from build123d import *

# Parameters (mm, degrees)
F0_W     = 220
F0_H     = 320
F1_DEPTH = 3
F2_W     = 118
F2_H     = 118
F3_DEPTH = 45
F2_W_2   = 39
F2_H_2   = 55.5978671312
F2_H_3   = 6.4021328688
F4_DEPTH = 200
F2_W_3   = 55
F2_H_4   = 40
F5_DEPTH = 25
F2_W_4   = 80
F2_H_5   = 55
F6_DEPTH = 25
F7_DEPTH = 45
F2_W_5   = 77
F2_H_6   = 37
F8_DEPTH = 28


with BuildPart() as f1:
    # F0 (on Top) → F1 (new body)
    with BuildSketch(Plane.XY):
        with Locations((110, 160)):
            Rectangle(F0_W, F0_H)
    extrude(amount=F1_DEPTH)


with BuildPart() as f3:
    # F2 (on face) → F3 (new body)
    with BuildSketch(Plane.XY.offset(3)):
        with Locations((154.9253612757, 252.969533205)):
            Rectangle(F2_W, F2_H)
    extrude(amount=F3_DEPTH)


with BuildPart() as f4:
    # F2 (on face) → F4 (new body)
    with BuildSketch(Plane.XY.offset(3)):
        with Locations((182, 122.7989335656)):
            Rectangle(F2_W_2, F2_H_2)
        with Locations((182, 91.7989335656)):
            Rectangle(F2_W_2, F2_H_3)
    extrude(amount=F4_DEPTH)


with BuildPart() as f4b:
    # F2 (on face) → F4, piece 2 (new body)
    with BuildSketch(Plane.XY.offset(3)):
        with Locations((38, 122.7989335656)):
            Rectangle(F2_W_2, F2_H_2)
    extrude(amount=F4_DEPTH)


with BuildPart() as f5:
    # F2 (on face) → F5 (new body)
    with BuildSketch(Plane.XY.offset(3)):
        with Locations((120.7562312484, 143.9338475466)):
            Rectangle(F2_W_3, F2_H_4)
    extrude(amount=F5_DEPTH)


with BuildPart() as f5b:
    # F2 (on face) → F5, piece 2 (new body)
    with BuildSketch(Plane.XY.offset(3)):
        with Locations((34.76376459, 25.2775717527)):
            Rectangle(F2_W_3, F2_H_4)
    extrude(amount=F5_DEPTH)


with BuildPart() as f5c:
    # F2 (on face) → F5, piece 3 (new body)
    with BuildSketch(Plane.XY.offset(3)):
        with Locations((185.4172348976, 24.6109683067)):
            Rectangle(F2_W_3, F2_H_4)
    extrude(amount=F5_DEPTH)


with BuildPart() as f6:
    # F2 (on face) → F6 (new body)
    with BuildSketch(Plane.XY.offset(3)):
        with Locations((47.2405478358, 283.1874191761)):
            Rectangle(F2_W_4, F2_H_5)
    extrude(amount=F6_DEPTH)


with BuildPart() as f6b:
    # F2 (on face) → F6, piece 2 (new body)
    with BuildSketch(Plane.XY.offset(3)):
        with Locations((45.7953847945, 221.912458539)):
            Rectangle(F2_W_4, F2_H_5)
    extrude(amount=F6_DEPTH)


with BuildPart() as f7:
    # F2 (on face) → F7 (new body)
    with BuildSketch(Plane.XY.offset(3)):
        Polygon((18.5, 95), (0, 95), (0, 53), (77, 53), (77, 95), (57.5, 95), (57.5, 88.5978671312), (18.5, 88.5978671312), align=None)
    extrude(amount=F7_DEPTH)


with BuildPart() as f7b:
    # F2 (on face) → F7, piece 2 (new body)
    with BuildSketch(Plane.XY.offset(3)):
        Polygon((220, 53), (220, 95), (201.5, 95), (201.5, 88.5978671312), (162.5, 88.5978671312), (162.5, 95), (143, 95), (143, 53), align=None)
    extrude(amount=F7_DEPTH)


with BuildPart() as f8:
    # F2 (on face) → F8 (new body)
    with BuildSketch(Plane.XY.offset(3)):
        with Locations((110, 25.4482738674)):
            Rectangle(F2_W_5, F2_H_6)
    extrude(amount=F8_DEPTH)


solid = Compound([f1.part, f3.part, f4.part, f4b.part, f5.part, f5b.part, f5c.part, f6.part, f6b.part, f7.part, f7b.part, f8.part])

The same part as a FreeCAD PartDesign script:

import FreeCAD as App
import Part
import Sketcher

doc = App.newDocument("Part")
params = doc.addObject("Spreadsheet::Sheet", "Params")
for row, (alias, value) in enumerate([
    ("sketch1_width", "220 mm"),
    ("sketch1_height", "320 mm"),
    ("pad1_length", "3 mm"),
    ("sketch2_width", "118 mm"),
    ("pad2_length", "45 mm"),
    ("sketch3_width", "39 mm"),
    ("sketch3_height", "62 mm"),
    ("pad3_length", "200 mm"),
    ("sketch4_width", "39 mm"),
    ("pad4_length", "200 mm"),
    ("sketch5_width", "55 mm"),
    ("sketch5_height", "40 mm"),
    ("pad5_length", "25 mm"),
    ("sketch6_width", "55 mm"),
    ("sketch6_height", "40 mm"),
    ("pad6_length", "25 mm"),
    ("sketch7_width", "55 mm"),
    ("sketch7_height", "40 mm"),
    ("pad7_length", "25 mm"),
    ("sketch8_width", "80 mm"),
    ("sketch8_height", "55 mm"),
    ("pad8_length", "25 mm"),
    ("sketch9_width", "80 mm"),
    ("sketch9_height", "55 mm"),
    ("pad9_length", "25 mm"),
    ("sketch10_width", "77 mm"),
    ("sketch10_width2", "39 mm"),
    ("sketch10_height", "42 mm"),
    ("sketch10_width3", "18.5 mm"),
    ("pad10_length", "45 mm"),
    ("sketch11_width", "39 mm"),
    ("sketch11_width2", "77 mm"),
    ("sketch11_height", "42 mm"),
    ("sketch11_width3", "18.5 mm"),
    ("pad11_length", "45 mm"),
    ("sketch12_width", "77 mm"),
    ("sketch12_height", "37 mm"),
    ("pad12_length", "28 mm"),
], start=1):
    params.set(f"A{row}", alias)
    params.set(f"B{row}", "=" + value)
    params.setAlias(f"B{row}", alias)

body = doc.addObject("PartDesign::Body", "Body")

sketch1 = body.newObject("Sketcher::SketchObject", "Sketch")
sketch1.AttachmentSupport = (doc.getObject("XY_Plane"), [""])
sketch1.MapMode = "FlatFace"
sketch1.addGeometry([
    Part.LineSegment(App.Vector(0, 320, 0), App.Vector(0, 0, 0)),
    Part.LineSegment(App.Vector(0, 0, 0), App.Vector(220, 0, 0)),
    Part.LineSegment(App.Vector(220, 0, 0), App.Vector(220, 320, 0)),
    Part.LineSegment(App.Vector(220, 320, 0), App.Vector(0, 320, 0)),
], False)
sketch1.addConstraint([
    Sketcher.Constraint("Coincident", 0, 2, 1, 1),
    Sketcher.Constraint("Coincident", 1, 2, 2, 1),
    Sketcher.Constraint("Coincident", 2, 2, 3, 1),
    Sketcher.Constraint("Coincident", 3, 2, 0, 1),
    Sketcher.Constraint("Vertical", 0),
    Sketcher.Constraint("Horizontal", 1),
    Sketcher.Constraint("Vertical", 2),
    Sketcher.Constraint("Horizontal", 3),
    Sketcher.Constraint("Coincident", 0, 2, -1, 1),
    Sketcher.Constraint("DistanceX", 1, 1, 1, 2, 220.0),
    Sketcher.Constraint("DistanceY", 0, 2, 0, 1, 320.0),
])
sketch1.setExpression("Constraints[9]", "Params.sketch1_width")
sketch1.setExpression("Constraints[10]", "Params.sketch1_height")
pad1 = body.newObject("PartDesign::Pad", "Pad")
pad1.Profile = sketch1
pad1.setExpression("Length", "Params.pad1_length")
body2 = doc.addObject("PartDesign::Body", "Body001")

sketch2 = body2.newObject("Sketcher::SketchObject", "Sketch001")
sketch2.AttachmentSupport = (doc.getObject("XY_Plane001"), [""])
sketch2.MapMode = "FlatFace"
sketch2.AttachmentOffset = App.Placement(App.Vector(0, 0, 3), App.Rotation())
sketch2.addGeometry([
    Part.LineSegment(App.Vector(96, 312, 0), App.Vector(96, 194, 0)),
    Part.LineSegment(App.Vector(96, 194, 0), App.Vector(214, 194, 0)),
    Part.LineSegment(App.Vector(214, 194, 0), App.Vector(214, 312, 0)),
    Part.LineSegment(App.Vector(214, 312, 0), App.Vector(96, 312, 0)),
], False)
sketch2.addConstraint([
    Sketcher.Constraint("Coincident", 0, 2, 1, 1),
    Sketcher.Constraint("Coincident", 1, 2, 2, 1),
    Sketcher.Constraint("Coincident", 2, 2, 3, 1),
    Sketcher.Constraint("Coincident", 3, 2, 0, 1),
    Sketcher.Constraint("Vertical", 0),
    Sketcher.Constraint("Horizontal", 1),
    Sketcher.Constraint("Vertical", 2),
    Sketcher.Constraint("Horizontal", 3),
    Sketcher.Constraint("Equal", 3, 0),
    Sketcher.Constraint("DistanceX", 1, 1, 1, 2, 118.0),
    Sketcher.Constraint("DistanceX", -1, 1, 0, 2, 95.925361),
    Sketcher.Constraint("DistanceY", -1, 1, 0, 2, 193.969533),
])
sketch2.setExpression("Constraints[9]", "Params.sketch2_width")
pad2 = body2.newObject("PartDesign::Pad", "Pad001")
pad2.Profile = sketch2
pad2.setExpression("Length", "Params.pad2_length")
body3 = doc.addObject("PartDesign::Body", "Body002")

sketch3 = body3.newObject("Sketcher::SketchObject", "Sketch002")
sketch3.AttachmentSupport = (doc.getObject("XY_Plane002"), [""])
sketch3.MapMode = "FlatFace"
sketch3.AttachmentOffset = App.Placement(App.Vector(0, 0, 3), App.Rotation())
sketch3.addGeometry([
    Part.LineSegment(App.Vector(162, 151, 0), App.Vector(162, 89, 0)),
    Part.LineSegment(App.Vector(162, 89, 0), App.Vector(202, 89, 0)),
    Part.LineSegment(App.Vector(202, 89, 0), App.Vector(202, 151, 0)),
    Part.LineSegment(App.Vector(202, 151, 0), App.Vector(162, 151, 0)),
], False)
sketch3.addConstraint([
    Sketcher.Constraint("Coincident", 0, 2, 1, 1),
    Sketcher.Constraint("Coincident", 1, 2, 2, 1),
    Sketcher.Constraint("Coincident", 2, 2, 3, 1),
    Sketcher.Constraint("Coincident", 3, 2, 0, 1),
    Sketcher.Constraint("Vertical", 0),
    Sketcher.Constraint("Horizontal", 1),
    Sketcher.Constraint("Vertical", 2),
    Sketcher.Constraint("Horizontal", 3),
    Sketcher.Constraint("DistanceX", 1, 1, 1, 2, 39.0),
    Sketcher.Constraint("DistanceY", 0, 2, 0, 1, 62.0),
    Sketcher.Constraint("DistanceX", -1, 1, 0, 2, 162.5),
    Sketcher.Constraint("DistanceY", -1, 1, 0, 2, 88.597867),
])
sketch3.setExpression("Constraints[8]", "Params.sketch3_width")
sketch3.setExpression("Constraints[9]", "Params.sketch3_height")
pad3 = body3.newObject("PartDesign::Pad", "Pad002")
pad3.Profile = sketch3
pad3.setExpression("Length", "Params.pad3_length")
body4 = doc.addObject("PartDesign::Body", "Body003")

sketch4 = body4.newObject("Sketcher::SketchObject", "Sketch003")
sketch4.AttachmentSupport = (doc.getObject("XY_Plane003"), [""])
sketch4.MapMode = "FlatFace"
sketch4.AttachmentOffset = App.Placement(App.Vector(0, 0, 3), App.Rotation())
sketch4.addGeometry([
    Part.LineSegment(App.Vector(18, 151, 0), App.Vector(18, 95, 0)),
    Part.LineSegment(App.Vector(18, 95, 0), App.Vector(58, 95, 0)),
    Part.LineSegment(App.Vector(58, 95, 0), App.Vector(58, 151, 0)),
    Part.LineSegment(App.Vector(58, 151, 0), App.Vector(18, 151, 0)),
], False)
sketch4.addConstraint([
    Sketcher.Constraint("Coincident", 0, 2, 1, 1),
    Sketcher.Constraint("Coincident", 1, 2, 2, 1),
    Sketcher.Constraint("Coincident", 2, 2, 3, 1),
    Sketcher.Constraint("Coincident", 3, 2, 0, 1),
    Sketcher.Constraint("Vertical", 0),
    Sketcher.Constraint("Horizontal", 1),
    Sketcher.Constraint("Vertical", 2),
    Sketcher.Constraint("Horizontal", 3),
    Sketcher.Constraint("DistanceX", 1, 1, 1, 2, 39.0),
    Sketcher.Constraint("DistanceY", -1, 1, 0, 2, 95.0),
    Sketcher.Constraint("DistanceX", -1, 1, 0, 2, 18.5),
    Sketcher.Constraint("DistanceY", 0, 2, 0, 1, 55.597867),
])
sketch4.setExpression("Constraints[8]", "Params.sketch4_width")
pad4 = body4.newObject("PartDesign::Pad", "Pad003")
pad4.Profile = sketch4
pad4.setExpression("Length", "Params.pad4_length")
body5 = doc.addObject("PartDesign::Body", "Body004")

sketch5 = body5.newObject("Sketcher::SketchObject", "Sketch004")
sketch5.AttachmentSupport = (doc.getObject("XY_Plane004"), [""])
sketch5.MapMode = "FlatFace"
sketch5.AttachmentOffset = App.Placement(App.Vector(0, 0, 3), App.Rotation())
sketch5.addGeometry([
    Part.LineSegment(App.Vector(93, 164, 0), App.Vector(93, 124, 0)),
    Part.LineSegment(App.Vector(93, 124, 0), App.Vector(148, 124, 0)),
    Part.LineSegment(App.Vector(148, 124, 0), App.Vector(148, 164, 0)),
    Part.LineSegment(App.Vector(148, 164, 0), App.Vector(93, 164, 0)),
], False)
sketch5.addConstraint([
    Sketcher.Constraint("Coincident", 0, 2, 1, 1),
    Sketcher.Constraint("Coincident", 1, 2, 2, 1),
    Sketcher.Constraint("Coincident", 2, 2, 3, 1),
    Sketcher.Constraint("Coincident", 3, 2, 0, 1),
    Sketcher.Constraint("Vertical", 0),
    Sketcher.Constraint("Horizontal", 1),
    Sketcher.Constraint("Vertical", 2),
    Sketcher.Constraint("Horizontal", 3),
    Sketcher.Constraint("DistanceX", 1, 1, 1, 2, 55.0),
    Sketcher.Constraint("DistanceY", 0, 2, 0, 1, 40.0),
    Sketcher.Constraint("DistanceX", -1, 1, 0, 2, 93.256231),
    Sketcher.Constraint("DistanceY", -1, 1, 0, 2, 123.933848),
])
sketch5.setExpression("Constraints[8]", "Params.sketch5_width")
sketch5.setExpression("Constraints[9]", "Params.sketch5_height")
pad5 = body5.newObject("PartDesign::Pad", "Pad004")
pad5.Profile = sketch5
pad5.setExpression("Length", "Params.pad5_length")
body6 = doc.addObject("PartDesign::Body", "Body005")

sketch6 = body6.newObject("Sketcher::SketchObject", "Sketch005")
sketch6.AttachmentSupport = (doc.getObject("XY_Plane005"), [""])
sketch6.MapMode = "FlatFace"
sketch6.AttachmentOffset = App.Placement(App.Vector(0, 0, 3), App.Rotation())
sketch6.addGeometry([
    Part.LineSegment(App.Vector(7, 45, 0), App.Vector(7, 5, 0)),
    Part.LineSegment(App.Vector(7, 5, 0), App.Vector(62, 5, 0)),
    Part.LineSegment(App.Vector(62, 5, 0), App.Vector(62, 45, 0)),
    Part.LineSegment(App.Vector(62, 45, 0), App.Vector(7, 45, 0)),
], False)
sketch6.addConstraint([
    Sketcher.Constraint("Coincident", 0, 2, 1, 1),
    Sketcher.Constraint("Coincident", 1, 2, 2, 1),
    Sketcher.Constraint("Coincident", 2, 2, 3, 1),
    Sketcher.Constraint("Coincident", 3, 2, 0, 1),
    Sketcher.Constraint("Vertical", 0),
    Sketcher.Constraint("Horizontal", 1),
    Sketcher.Constraint("Vertical", 2),
    Sketcher.Constraint("Horizontal", 3),
    Sketcher.Constraint("DistanceX", 1, 1, 1, 2, 55.0),
    Sketcher.Constraint("DistanceY", 0, 2, 0, 1, 40.0),
    Sketcher.Constraint("DistanceY", -1, 1, 0, 2, 5.277572),
    Sketcher.Constraint("DistanceX", -1, 1, 0, 2, 7.263765),
])
sketch6.setExpression("Constraints[8]", "Params.sketch6_width")
sketch6.setExpression("Constraints[9]", "Params.sketch6_height")
pad6 = body6.newObject("PartDesign::Pad", "Pad005")
pad6.Profile = sketch6
pad6.setExpression("Length", "Params.pad6_length")
body7 = doc.addObject("PartDesign::Body", "Body006")

sketch7 = body7.newObject("Sketcher::SketchObject", "Sketch006")
sketch7.AttachmentSupport = (doc.getObject("XY_Plane006"), [""])
sketch7.MapMode = "FlatFace"
sketch7.AttachmentOffset = App.Placement(App.Vector(0, 0, 3), App.Rotation())
sketch7.addGeometry([
    Part.LineSegment(App.Vector(158, 45, 0), App.Vector(158, 5, 0)),
    Part.LineSegment(App.Vector(158, 5, 0), App.Vector(213, 5, 0)),
    Part.LineSegment(App.Vector(213, 5, 0), App.Vector(213, 45, 0)),
    Part.LineSegment(App.Vector(213, 45, 0), App.Vector(158, 45, 0)),
], False)
sketch7.addConstraint([
    Sketcher.Constraint("Coincident", 0, 2, 1, 1),
    Sketcher.Constraint("Coincident", 1, 2, 2, 1),
    Sketcher.Constraint("Coincident", 2, 2, 3, 1),
    Sketcher.Constraint("Coincident", 3, 2, 0, 1),
    Sketcher.Constraint("Vertical", 0),
    Sketcher.Constraint("Horizontal", 1),
    Sketcher.Constraint("Vertical", 2),
    Sketcher.Constraint("Horizontal", 3),
    Sketcher.Constraint("DistanceX", 1, 1, 1, 2, 55.0),
    Sketcher.Constraint("DistanceY", 0, 2, 0, 1, 40.0),
    Sketcher.Constraint("DistanceY", -1, 1, 0, 2, 4.610968),
    Sketcher.Constraint("DistanceX", -1, 1, 0, 2, 157.917235),
])
sketch7.setExpression("Constraints[8]", "Params.sketch7_width")
sketch7.setExpression("Constraints[9]", "Params.sketch7_height")
pad7 = body7.newObject("PartDesign::Pad", "Pad006")
pad7.Profile = sketch7
pad7.setExpression("Length", "Params.pad7_length")
body8 = doc.addObject("PartDesign::Body", "Body007")

sketch8 = body8.newObject("Sketcher::SketchObject", "Sketch007")
sketch8.AttachmentSupport = (doc.getObject("XY_Plane007"), [""])
sketch8.MapMode = "FlatFace"
sketch8.AttachmentOffset = App.Placement(App.Vector(0, 0, 3), App.Rotation())
sketch8.addGeometry([
    Part.LineSegment(App.Vector(7, 311, 0), App.Vector(7, 256, 0)),
    Part.LineSegment(App.Vector(7, 256, 0), App.Vector(87, 256, 0)),
    Part.LineSegment(App.Vector(87, 256, 0), App.Vector(87, 311, 0)),
    Part.LineSegment(App.Vector(87, 311, 0), App.Vector(7, 311, 0)),
], False)
sketch8.addConstraint([
    Sketcher.Constraint("Coincident", 0, 2, 1, 1),
    Sketcher.Constraint("Coincident", 1, 2, 2, 1),
    Sketcher.Constraint("Coincident", 2, 2, 3, 1),
    Sketcher.Constraint("Coincident", 3, 2, 0, 1),
    Sketcher.Constraint("Vertical", 0),
    Sketcher.Constraint("Horizontal", 1),
    Sketcher.Constraint("Vertical", 2),
    Sketcher.Constraint("Horizontal", 3),
    Sketcher.Constraint("DistanceX", 1, 1, 1, 2, 80.0),
    Sketcher.Constraint("DistanceY", 0, 2, 0, 1, 55.0),
    Sketcher.Constraint("DistanceY", -1, 1, 0, 2, 255.687419),
    Sketcher.Constraint("DistanceX", -1, 1, 0, 2, 7.240548),
])
sketch8.setExpression("Constraints[8]", "Params.sketch8_width")
sketch8.setExpression("Constraints[9]", "Params.sketch8_height")
pad8 = body8.newObject("PartDesign::Pad", "Pad007")
pad8.Profile = sketch8
pad8.setExpression("Length", "Params.pad8_length")
body9 = doc.addObject("PartDesign::Body", "Body008")

sketch9 = body9.newObject("Sketcher::SketchObject", "Sketch008")
sketch9.AttachmentSupport = (doc.getObject("XY_Plane008"), [""])
sketch9.MapMode = "FlatFace"
sketch9.AttachmentOffset = App.Placement(App.Vector(0, 0, 3), App.Rotation())
sketch9.addGeometry([
    Part.LineSegment(App.Vector(6, 249, 0), App.Vector(6, 194, 0)),
    Part.LineSegment(App.Vector(6, 194, 0), App.Vector(86, 194, 0)),
    Part.LineSegment(App.Vector(86, 194, 0), App.Vector(86, 249, 0)),
    Part.LineSegment(App.Vector(86, 249, 0), App.Vector(6, 249, 0)),
], False)
sketch9.addConstraint([
    Sketcher.Constraint("Coincident", 0, 2, 1, 1),
    Sketcher.Constraint("Coincident", 1, 2, 2, 1),
    Sketcher.Constraint("Coincident", 2, 2, 3, 1),
    Sketcher.Constraint("Coincident", 3, 2, 0, 1),
    Sketcher.Constraint("Vertical", 0),
    Sketcher.Constraint("Horizontal", 1),
    Sketcher.Constraint("Vertical", 2),
    Sketcher.Constraint("Horizontal", 3),
    Sketcher.Constraint("DistanceX", 1, 1, 1, 2, 80.0),
    Sketcher.Constraint("DistanceY", 0, 2, 0, 1, 55.0),
    Sketcher.Constraint("DistanceY", -1, 1, 0, 2, 194.412459),
    Sketcher.Constraint("DistanceX", -1, 1, 0, 2, 5.795385),
])
sketch9.setExpression("Constraints[8]", "Params.sketch9_width")
sketch9.setExpression("Constraints[9]", "Params.sketch9_height")
pad9 = body9.newObject("PartDesign::Pad", "Pad008")
pad9.Profile = sketch9
pad9.setExpression("Length", "Params.pad9_length")
body10 = doc.addObject("PartDesign::Body", "Body009")

sketch10 = body10.newObject("Sketcher::SketchObject", "Sketch009")
sketch10.AttachmentSupport = (doc.getObject("XY_Plane009"), [""])
sketch10.MapMode = "FlatFace"
sketch10.AttachmentOffset = App.Placement(App.Vector(0, 0, 3), App.Rotation())
sketch10.addGeometry([
    Part.LineSegment(App.Vector(18, 95, 0), App.Vector(0, 95, 0)),
    Part.LineSegment(App.Vector(0, 95, 0), App.Vector(0, 53, 0)),
    Part.LineSegment(App.Vector(0, 53, 0), App.Vector(77, 53, 0)),
    Part.LineSegment(App.Vector(77, 53, 0), App.Vector(77, 95, 0)),
    Part.LineSegment(App.Vector(77, 95, 0), App.Vector(58, 95, 0)),
    Part.LineSegment(App.Vector(58, 95, 0), App.Vector(58, 89, 0)),
    Part.LineSegment(App.Vector(58, 89, 0), App.Vector(18, 89, 0)),
    Part.LineSegment(App.Vector(18, 89, 0), App.Vector(18, 95, 0)),
], False)
sketch10.addConstraint([
    Sketcher.Constraint("Coincident", 0, 2, 1, 1),
    Sketcher.Constraint("Coincident", 1, 2, 2, 1),
    Sketcher.Constraint("Coincident", 2, 2, 3, 1),
    Sketcher.Constraint("Coincident", 3, 2, 4, 1),
    Sketcher.Constraint("Coincident", 4, 2, 5, 1),
    Sketcher.Constraint("Coincident", 5, 2, 6, 1),
    Sketcher.Constraint("Coincident", 6, 2, 7, 1),
    Sketcher.Constraint("Coincident", 7, 2, 0, 1),
    Sketcher.Constraint("Horizontal", 0),
    Sketcher.Constraint("Vertical", 1),
    Sketcher.Constraint("Horizontal", 2),
    Sketcher.Constraint("Vertical", 3),
    Sketcher.Constraint("Horizontal", 4),
    Sketcher.Constraint("Vertical", 5),
    Sketcher.Constraint("Horizontal", 6),
    Sketcher.Constraint("Vertical", 7),
    Sketcher.Constraint("PointOnObject", 0, 2, -2),
    Sketcher.Constraint("Horizontal", 0, 2, 3, 2),
    Sketcher.Constraint("DistanceX", 2, 1, 2, 2, 77.0),
    Sketcher.Constraint("DistanceX", 6, 2, 6, 1, 39.0),
    Sketcher.Constraint("DistanceY", 1, 2, 1, 1, 42.0),
    Sketcher.Constraint("DistanceX", 0, 2, 0, 1, 18.5),
    Sketcher.Constraint("DistanceY", -1, 1, 0, 2, 95.0),
    Sketcher.Constraint("DistanceY", 5, 2, 5, 1, 6.402133),
])
sketch10.setExpression("Constraints[18]", "Params.sketch10_width")
sketch10.setExpression("Constraints[19]", "Params.sketch10_width2")
sketch10.setExpression("Constraints[20]", "Params.sketch10_height")
sketch10.setExpression("Constraints[21]", "Params.sketch10_width3")
pad10 = body10.newObject("PartDesign::Pad", "Pad009")
pad10.Profile = sketch10
pad10.setExpression("Length", "Params.pad10_length")
body11 = doc.addObject("PartDesign::Body", "Body010")

sketch11 = body11.newObject("Sketcher::SketchObject", "Sketch010")
sketch11.AttachmentSupport = (doc.getObject("XY_Plane010"), [""])
sketch11.MapMode = "FlatFace"
sketch11.AttachmentOffset = App.Placement(App.Vector(0, 0, 3), App.Rotation())
sketch11.addGeometry([
    Part.LineSegment(App.Vector(220, 53, 0), App.Vector(220, 95, 0)),
    Part.LineSegment(App.Vector(220, 95, 0), App.Vector(202, 95, 0)),
    Part.LineSegment(App.Vector(202, 95, 0), App.Vector(202, 89, 0)),
    Part.LineSegment(App.Vector(202, 89, 0), App.Vector(162, 89, 0)),
    Part.LineSegment(App.Vector(162, 89, 0), App.Vector(162, 95, 0)),
    Part.LineSegment(App.Vector(162, 95, 0), App.Vector(143, 95, 0)),
    Part.LineSegment(App.Vector(143, 95, 0), App.Vector(143, 53, 0)),
    Part.LineSegment(App.Vector(143, 53, 0), App.Vector(220, 53, 0)),
], False)
sketch11.addConstraint([
    Sketcher.Constraint("Coincident", 0, 2, 1, 1),
    Sketcher.Constraint("Coincident", 1, 2, 2, 1),
    Sketcher.Constraint("Coincident", 2, 2, 3, 1),
    Sketcher.Constraint("Coincident", 3, 2, 4, 1),
    Sketcher.Constraint("Coincident", 4, 2, 5, 1),
    Sketcher.Constraint("Coincident", 5, 2, 6, 1),
    Sketcher.Constraint("Coincident", 6, 2, 7, 1),
    Sketcher.Constraint("Coincident", 7, 2, 0, 1),
    Sketcher.Constraint("Vertical", 0),
    Sketcher.Constraint("Horizontal", 1),
    Sketcher.Constraint("Vertical", 2),
    Sketcher.Constraint("Horizontal", 3),
    Sketcher.Constraint("Vertical", 4),
    Sketcher.Constraint("Horizontal", 5),
    Sketcher.Constraint("Vertical", 6),
    Sketcher.Constraint("Horizontal", 7),
    Sketcher.Constraint("Horizontal", 1, 2, 4, 2),
    Sketcher.Constraint("DistanceX", 3, 2, 3, 1, 39.0),
    Sketcher.Constraint("DistanceX", 7, 1, 7, 2, 77.0),
    Sketcher.Constraint("DistanceY", 0, 1, 0, 2, 42.0),
    Sketcher.Constraint("DistanceX", 1, 2, 1, 1, 18.5),
    Sketcher.Constraint("DistanceX", -1, 1, 0, 2, 220.0),
    Sketcher.Constraint("DistanceY", -1, 1, 0, 2, 95.0),
    Sketcher.Constraint("DistanceY", 2, 2, 2, 1, 6.402133),
])
sketch11.setExpression("Constraints[17]", "Params.sketch11_width")
sketch11.setExpression("Constraints[18]", "Params.sketch11_width2")
sketch11.setExpression("Constraints[19]", "Params.sketch11_height")
sketch11.setExpression("Constraints[20]", "Params.sketch11_width3")
pad11 = body11.newObject("PartDesign::Pad", "Pad010")
pad11.Profile = sketch11
pad11.setExpression("Length", "Params.pad11_length")
body12 = doc.addObject("PartDesign::Body", "Body011")

sketch12 = body12.newObject("Sketcher::SketchObject", "Sketch011")
sketch12.AttachmentSupport = (doc.getObject("XY_Plane011"), [""])
sketch12.MapMode = "FlatFace"
sketch12.AttachmentOffset = App.Placement(App.Vector(0, 0, 3), App.Rotation())
sketch12.addGeometry([
    Part.LineSegment(App.Vector(72, 44, 0), App.Vector(72, 7, 0)),
    Part.LineSegment(App.Vector(72, 7, 0), App.Vector(148, 7, 0)),
    Part.LineSegment(App.Vector(148, 7, 0), App.Vector(148, 44, 0)),
    Part.LineSegment(App.Vector(148, 44, 0), App.Vector(72, 44, 0)),
], False)
sketch12.addConstraint([
    Sketcher.Constraint("Coincident", 0, 2, 1, 1),
    Sketcher.Constraint("Coincident", 1, 2, 2, 1),
    Sketcher.Constraint("Coincident", 2, 2, 3, 1),
    Sketcher.Constraint("Coincident", 3, 2, 0, 1),
    Sketcher.Constraint("Vertical", 0),
    Sketcher.Constraint("Horizontal", 1),
    Sketcher.Constraint("Vertical", 2),
    Sketcher.Constraint("Horizontal", 3),
    Sketcher.Constraint("DistanceX", 1, 1, 1, 2, 77.0),
    Sketcher.Constraint("DistanceY", 0, 2, 0, 1, 37.0),
    Sketcher.Constraint("DistanceX", -1, 1, 0, 2, 71.5),
    Sketcher.Constraint("DistanceY", -1, 1, 0, 2, 6.948274),
])
sketch12.setExpression("Constraints[8]", "Params.sketch12_width")
sketch12.setExpression("Constraints[9]", "Params.sketch12_height")
pad12 = body12.newObject("PartDesign::Pad", "Pad011")
pad12.Profile = sketch12
pad12.setExpression("Length", "Params.pad12_length")

doc.recompute()
